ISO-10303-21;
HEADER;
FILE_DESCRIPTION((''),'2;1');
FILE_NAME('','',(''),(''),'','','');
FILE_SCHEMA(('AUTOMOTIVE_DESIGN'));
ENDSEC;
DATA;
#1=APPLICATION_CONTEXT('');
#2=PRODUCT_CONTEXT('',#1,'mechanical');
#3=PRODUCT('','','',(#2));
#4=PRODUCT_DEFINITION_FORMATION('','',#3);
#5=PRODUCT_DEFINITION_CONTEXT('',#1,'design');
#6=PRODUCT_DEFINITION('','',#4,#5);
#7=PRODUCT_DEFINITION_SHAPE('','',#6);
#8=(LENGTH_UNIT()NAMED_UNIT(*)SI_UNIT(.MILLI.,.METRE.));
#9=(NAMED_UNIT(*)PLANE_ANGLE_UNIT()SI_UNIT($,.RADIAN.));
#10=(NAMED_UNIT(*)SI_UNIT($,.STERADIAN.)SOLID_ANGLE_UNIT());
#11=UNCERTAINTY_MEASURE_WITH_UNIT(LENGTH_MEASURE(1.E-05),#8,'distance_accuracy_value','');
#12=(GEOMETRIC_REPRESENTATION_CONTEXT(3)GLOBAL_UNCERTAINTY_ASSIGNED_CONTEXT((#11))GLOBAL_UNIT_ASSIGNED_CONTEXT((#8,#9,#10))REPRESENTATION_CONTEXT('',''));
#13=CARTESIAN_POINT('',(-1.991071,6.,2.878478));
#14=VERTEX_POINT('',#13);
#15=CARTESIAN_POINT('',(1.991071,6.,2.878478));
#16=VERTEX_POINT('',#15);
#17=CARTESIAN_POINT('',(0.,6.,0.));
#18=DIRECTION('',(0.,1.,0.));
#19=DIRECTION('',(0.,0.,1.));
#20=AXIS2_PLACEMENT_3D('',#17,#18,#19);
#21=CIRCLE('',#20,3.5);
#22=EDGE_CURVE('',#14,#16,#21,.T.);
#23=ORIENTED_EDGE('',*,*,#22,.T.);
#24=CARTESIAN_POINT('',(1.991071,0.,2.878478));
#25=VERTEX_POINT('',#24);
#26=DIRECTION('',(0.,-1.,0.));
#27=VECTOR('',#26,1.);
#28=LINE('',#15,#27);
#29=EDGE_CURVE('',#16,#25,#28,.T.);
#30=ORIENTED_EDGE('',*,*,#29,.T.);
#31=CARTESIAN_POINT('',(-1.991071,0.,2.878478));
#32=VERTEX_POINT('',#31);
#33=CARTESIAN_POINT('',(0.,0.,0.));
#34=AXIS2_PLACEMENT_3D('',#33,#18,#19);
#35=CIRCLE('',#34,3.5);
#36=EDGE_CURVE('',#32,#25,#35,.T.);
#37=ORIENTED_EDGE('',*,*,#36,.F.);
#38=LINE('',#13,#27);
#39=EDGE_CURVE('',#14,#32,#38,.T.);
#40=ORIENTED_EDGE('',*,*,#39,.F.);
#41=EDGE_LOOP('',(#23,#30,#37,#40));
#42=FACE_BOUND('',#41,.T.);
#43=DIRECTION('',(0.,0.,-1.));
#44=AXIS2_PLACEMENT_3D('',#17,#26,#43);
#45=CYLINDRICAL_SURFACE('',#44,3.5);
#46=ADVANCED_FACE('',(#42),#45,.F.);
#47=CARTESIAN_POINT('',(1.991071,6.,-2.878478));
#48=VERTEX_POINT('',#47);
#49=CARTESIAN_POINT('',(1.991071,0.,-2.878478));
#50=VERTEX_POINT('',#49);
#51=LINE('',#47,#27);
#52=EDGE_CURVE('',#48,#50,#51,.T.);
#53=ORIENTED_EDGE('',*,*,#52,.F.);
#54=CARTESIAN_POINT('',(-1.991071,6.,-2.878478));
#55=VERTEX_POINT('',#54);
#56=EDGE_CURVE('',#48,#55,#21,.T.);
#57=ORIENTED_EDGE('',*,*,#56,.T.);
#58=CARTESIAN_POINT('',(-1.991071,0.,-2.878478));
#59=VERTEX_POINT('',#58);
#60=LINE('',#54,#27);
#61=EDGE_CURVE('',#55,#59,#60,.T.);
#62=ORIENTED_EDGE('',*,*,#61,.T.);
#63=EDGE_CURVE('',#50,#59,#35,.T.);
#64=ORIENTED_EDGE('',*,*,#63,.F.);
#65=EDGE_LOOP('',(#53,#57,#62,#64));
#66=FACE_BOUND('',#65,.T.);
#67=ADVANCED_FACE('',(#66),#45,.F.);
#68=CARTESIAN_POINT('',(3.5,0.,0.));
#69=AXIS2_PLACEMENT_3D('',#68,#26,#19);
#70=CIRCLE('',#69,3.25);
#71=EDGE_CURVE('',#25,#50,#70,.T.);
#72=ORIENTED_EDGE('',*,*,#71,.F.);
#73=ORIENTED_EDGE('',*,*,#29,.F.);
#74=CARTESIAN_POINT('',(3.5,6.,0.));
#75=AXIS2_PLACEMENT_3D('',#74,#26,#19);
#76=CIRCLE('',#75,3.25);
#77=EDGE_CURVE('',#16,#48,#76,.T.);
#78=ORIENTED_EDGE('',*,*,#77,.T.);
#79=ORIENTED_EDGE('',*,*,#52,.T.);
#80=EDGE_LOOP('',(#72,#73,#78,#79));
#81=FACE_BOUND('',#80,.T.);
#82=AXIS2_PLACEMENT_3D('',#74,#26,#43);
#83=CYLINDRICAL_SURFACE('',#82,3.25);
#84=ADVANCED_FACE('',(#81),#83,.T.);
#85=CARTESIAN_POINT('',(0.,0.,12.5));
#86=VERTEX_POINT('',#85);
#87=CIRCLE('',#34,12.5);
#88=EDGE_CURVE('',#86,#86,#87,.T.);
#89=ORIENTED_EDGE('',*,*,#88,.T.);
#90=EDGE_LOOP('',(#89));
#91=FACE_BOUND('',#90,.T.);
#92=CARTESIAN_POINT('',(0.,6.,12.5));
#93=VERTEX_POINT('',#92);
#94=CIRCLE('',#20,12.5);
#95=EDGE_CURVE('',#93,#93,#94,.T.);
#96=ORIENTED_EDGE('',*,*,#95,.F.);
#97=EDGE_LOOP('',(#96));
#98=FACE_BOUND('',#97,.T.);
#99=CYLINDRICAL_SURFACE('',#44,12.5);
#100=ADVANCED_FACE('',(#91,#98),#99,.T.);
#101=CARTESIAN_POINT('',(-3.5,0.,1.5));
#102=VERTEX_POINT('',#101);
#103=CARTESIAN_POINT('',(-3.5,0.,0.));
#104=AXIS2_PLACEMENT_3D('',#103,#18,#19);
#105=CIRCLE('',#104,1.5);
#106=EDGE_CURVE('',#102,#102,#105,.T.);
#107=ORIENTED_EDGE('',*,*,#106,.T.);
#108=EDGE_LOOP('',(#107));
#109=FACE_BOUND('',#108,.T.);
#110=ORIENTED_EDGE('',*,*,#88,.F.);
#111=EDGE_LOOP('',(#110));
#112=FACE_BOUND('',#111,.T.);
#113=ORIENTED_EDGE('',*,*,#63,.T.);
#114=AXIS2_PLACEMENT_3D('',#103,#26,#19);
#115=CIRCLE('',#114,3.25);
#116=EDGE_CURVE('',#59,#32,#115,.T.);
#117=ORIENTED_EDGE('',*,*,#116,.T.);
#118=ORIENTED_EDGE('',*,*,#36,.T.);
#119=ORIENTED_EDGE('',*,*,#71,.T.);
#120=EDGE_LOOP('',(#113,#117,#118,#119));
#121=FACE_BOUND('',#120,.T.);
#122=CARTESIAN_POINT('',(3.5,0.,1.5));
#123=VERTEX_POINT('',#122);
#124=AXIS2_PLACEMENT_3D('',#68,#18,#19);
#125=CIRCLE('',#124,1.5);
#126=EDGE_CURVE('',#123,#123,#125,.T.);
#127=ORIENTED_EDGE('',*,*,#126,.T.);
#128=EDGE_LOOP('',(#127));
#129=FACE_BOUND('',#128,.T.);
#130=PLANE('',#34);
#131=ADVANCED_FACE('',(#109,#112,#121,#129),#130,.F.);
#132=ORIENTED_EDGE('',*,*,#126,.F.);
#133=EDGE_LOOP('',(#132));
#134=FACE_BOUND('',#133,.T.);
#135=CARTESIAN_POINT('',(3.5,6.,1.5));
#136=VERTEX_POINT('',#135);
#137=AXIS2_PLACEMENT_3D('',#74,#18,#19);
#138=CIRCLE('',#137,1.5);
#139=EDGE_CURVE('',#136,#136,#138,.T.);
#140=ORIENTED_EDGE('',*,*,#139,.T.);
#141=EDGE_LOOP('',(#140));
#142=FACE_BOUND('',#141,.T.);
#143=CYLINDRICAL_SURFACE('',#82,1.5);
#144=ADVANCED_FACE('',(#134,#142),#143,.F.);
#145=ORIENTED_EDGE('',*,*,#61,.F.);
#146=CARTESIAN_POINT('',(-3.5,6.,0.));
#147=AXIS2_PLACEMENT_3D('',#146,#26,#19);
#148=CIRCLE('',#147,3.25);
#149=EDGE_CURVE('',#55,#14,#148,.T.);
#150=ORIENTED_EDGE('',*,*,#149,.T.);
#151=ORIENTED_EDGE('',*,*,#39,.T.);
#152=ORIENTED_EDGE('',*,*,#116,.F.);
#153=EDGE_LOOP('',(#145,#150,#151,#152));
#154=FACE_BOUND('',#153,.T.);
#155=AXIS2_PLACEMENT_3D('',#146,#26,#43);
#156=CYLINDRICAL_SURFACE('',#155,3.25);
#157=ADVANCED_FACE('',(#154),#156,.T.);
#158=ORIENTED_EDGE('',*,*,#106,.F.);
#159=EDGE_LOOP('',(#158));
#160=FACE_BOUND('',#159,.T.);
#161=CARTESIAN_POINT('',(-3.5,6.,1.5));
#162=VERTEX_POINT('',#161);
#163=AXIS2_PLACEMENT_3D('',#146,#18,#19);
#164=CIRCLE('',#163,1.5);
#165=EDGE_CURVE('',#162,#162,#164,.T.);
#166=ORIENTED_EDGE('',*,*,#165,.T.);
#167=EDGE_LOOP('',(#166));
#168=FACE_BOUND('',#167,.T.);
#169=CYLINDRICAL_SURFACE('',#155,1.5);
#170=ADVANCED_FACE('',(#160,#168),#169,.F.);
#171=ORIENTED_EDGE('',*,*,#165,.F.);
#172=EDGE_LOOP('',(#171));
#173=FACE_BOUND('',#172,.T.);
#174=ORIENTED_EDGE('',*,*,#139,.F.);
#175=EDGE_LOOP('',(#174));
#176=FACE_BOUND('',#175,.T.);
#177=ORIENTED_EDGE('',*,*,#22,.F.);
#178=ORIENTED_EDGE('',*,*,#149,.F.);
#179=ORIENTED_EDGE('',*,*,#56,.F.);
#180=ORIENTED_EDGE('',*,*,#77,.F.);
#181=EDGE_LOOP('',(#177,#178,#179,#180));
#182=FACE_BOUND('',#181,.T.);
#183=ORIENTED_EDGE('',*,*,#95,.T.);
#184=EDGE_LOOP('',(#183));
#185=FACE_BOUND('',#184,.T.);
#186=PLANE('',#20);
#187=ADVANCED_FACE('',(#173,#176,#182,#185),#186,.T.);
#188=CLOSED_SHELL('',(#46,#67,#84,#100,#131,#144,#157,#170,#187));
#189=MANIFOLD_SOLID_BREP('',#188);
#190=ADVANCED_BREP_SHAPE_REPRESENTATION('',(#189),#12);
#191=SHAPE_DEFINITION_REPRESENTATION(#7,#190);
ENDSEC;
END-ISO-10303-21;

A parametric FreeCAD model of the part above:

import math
import FreeCAD as App
import Part
import Sketcher
from FreeCAD import Vector
Q = App.Units.Quantity

doc = App.newDocument("Part")
body = doc.addObject("PartDesign::Body", "Body")

sketch1 = body.newObject("Sketcher::SketchObject", "Sketch")
sketch1.AttachmentSupport = (doc.getObject("XZ_Plane"), [""])
sketch1.MapMode = "FlatFace"
sketch1.addGeometry(Part.Circle(Vector(0, 0, 0), Vector(0, 0, 1), 12.5), False)
sketch1.addGeometry(Part.Circle(Vector(-3.5, 0, 0), Vector(0, 0, 1), 1.5), False)
sketch1.addGeometry(Part.ArcOfCircle(Part.Circle(Vector(0, 0, 0), Vector(0, 0, 1), 3.5), math.radians(-124.671991), math.radians(-55.328009)), False)
sketch1.addGeometry(Part.ArcOfCircle(Part.Circle(Vector(3.5, 0, 0), Vector(0, 0, 1), 3.25), math.radians(117.664004), math.radians(242.335996)), False)
sketch1.addGeometry(Part.ArcOfCircle(Part.Circle(Vector(0, 0, 0), Vector(0, 0, 1), 3.5), math.radians(55.328009), math.radians(124.671991)), False)
sketch1.addGeometry(Part.ArcOfCircle(Part.Circle(Vector(-3.5, 0, 0), Vector(0, 0, 1), 3.25), math.radians(-62.335996), math.radians(62.335996)), False)
sketch1.addGeometry(Part.Circle(Vector(3.5, 0, 0), Vector(0, 0, 1), 1.5), False)
sketch1.addConstraint(Sketcher.Constraint("Coincident", 2, 2, 3, 2))
sketch1.addConstraint(Sketcher.Constraint("Coincident", 3, 1, 4, 1))
sketch1.addConstraint(Sketcher.Constraint("Coincident", 4, 2, 5, 2))
sketch1.addConstraint(Sketcher.Constraint("Coincident", 5, 1, 2, 1))
sketch1.addConstraint(Sketcher.Constraint("Coincident", 0, 3, -1, 1))
sketch1.addConstraint(Sketcher.Constraint("Coincident", 2, 3, -1, 1))
sketch1.addConstraint(Sketcher.Constraint("Coincident", 4, 3, -1, 1))
sketch1.addConstraint(Sketcher.Constraint("Coincident", 5, 3, 1, 3))
sketch1.addConstraint(Sketcher.Constraint("Coincident", 6, 3, 3, 3))
sketch1.addConstraint(Sketcher.Constraint("Equal", 2, 4))
sketch1.addConstraint(Sketcher.Constraint("Equal", 3, 5))
sketch1.addConstraint(Sketcher.Constraint("Equal", 1, 6))
sketch1.addConstraint(Sketcher.Constraint("Symmetric", 1, 3, 3, 3, -1, 1))
sketch1.addConstraint(Sketcher.Constraint("PointOnObject", 1, 3, -1))
sketch1.addConstraint(Sketcher.Constraint("Diameter", 0, Q("25 mm")))
sketch1.addConstraint(Sketcher.Constraint("Diameter", 1, Q("3 mm")))
sketch1.addConstraint(Sketcher.Constraint("Radius", 2, Q("3.5 mm")))
sketch1.addConstraint(Sketcher.Constraint("Radius", 3, Q("3.25 mm")))
sketch1.addConstraint(Sketcher.Constraint("DistanceX", 1, 3, 3, 3, Q("7 mm")))
pad1 = body.newObject("PartDesign::Pad", "Pad")
pad1.Profile = sketch1
pad1.Length = 6
pad1.Reversed = True

doc.recompute()
